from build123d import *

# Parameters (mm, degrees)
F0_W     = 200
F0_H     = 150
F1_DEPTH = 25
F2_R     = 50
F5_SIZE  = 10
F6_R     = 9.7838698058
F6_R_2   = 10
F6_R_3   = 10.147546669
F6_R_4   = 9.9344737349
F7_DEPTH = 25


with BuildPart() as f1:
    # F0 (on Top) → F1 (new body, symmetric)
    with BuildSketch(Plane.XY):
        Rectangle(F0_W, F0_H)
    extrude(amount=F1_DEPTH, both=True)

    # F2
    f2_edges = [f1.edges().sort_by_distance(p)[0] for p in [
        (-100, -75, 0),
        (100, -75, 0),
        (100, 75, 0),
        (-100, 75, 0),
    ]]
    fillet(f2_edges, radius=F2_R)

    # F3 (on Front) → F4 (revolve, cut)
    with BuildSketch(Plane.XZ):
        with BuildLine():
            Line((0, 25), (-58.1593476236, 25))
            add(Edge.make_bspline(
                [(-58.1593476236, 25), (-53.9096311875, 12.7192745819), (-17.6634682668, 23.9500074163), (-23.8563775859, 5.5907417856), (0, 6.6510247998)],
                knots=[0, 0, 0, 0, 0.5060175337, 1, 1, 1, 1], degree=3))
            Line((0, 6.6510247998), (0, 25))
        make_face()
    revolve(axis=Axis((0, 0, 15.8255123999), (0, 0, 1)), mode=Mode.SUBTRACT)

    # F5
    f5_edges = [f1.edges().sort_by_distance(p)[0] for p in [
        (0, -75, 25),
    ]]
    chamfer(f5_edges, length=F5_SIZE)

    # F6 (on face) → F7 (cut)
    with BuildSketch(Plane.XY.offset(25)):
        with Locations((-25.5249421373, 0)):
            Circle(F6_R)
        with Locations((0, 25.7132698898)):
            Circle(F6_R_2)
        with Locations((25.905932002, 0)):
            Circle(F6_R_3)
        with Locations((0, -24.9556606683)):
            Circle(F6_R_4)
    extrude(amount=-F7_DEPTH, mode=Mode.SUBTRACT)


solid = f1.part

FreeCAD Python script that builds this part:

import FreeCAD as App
import Part
import Sketcher
from FreeCAD import Vector
Q = App.Units.Quantity


def edges_at(feature, points):
    """Names of the edges that pass closest to the given points."""
    edges = feature.Shape.Edges
    near = lambda p: min(range(len(edges)), key=lambda i: edges[i].distToShape(Part.Vertex(*p))[0])
    return sorted({f"Edge{near(p) + 1}" for p in points})


def add_polygon(sketch, points):
    """Adds a closed chain of lines whose ends are joined by coincident constraints."""
    first, n = sketch.GeometryCount, len(points)
    for a, b in zip(points, points[1:] + points[:1]):
        sketch.addGeometry(Part.LineSegment(App.Vector(*a, 0), App.Vector(*b, 0)), False)
    for i in range(n):
        sketch.addConstraint(Sketcher.Constraint("Coincident", first + i, 2, first + (i + 1) % n, 1))

doc = App.newDocument("Part")
params = doc.addObject("Spreadsheet::Sheet", "Params")
for row, (alias, value) in enumerate([
    ("sketch1_width", "200 mm"),
    ("sketch1_height", "150 mm"),
    ("pad1_length", "50 mm"),
    ("fillet_radius", "50 mm"),
    ("groove_angle", "360 deg"),
    ("chamfer_size", "10 mm"),
    ("sketch3_diameter", "20 mm"),
    ("pocket1_length", "25 mm"),
], start=1):
    params.set(f"A{row}", alias)
    params.set(f"B{row}", "=" + value)
    params.setAlias(f"B{row}", alias)

body = doc.addObject("PartDesign::Body", "Body")

# Sketch on XY plane
sketch1 = body.newObject("Sketcher::SketchObject", "Sketch")
sketch1.AttachmentSupport = (doc.getObject("XY_Plane"), [""])
sketch1.MapMode = "FlatFace"
add_polygon(sketch1, [(-100, 75), (-100, -75), (100, -75), (100, 75)])  # lines 0-3
sketch1.addConstraint(Sketcher.Constraint("Vertical", 0))
sketch1.addConstraint(Sketcher.Constraint("Horizontal", 1))
sketch1.addConstraint(Sketcher.Constraint("Vertical", 2))
sketch1.addConstraint(Sketcher.Constraint("Horizontal", 3))
sketch1.addConstraint(Sketcher.Constraint("Symmetric", 0, 2, 2, 2, -1, 1))
sketch1.addConstraint(Sketcher.Constraint("DistanceX", 1, 1, 1, 2, Q("200 mm")))
sketch1.addConstraint(Sketcher.Constraint("DistanceY", 0, 2, 0, 1, Q("150 mm")))
sketch1.setExpression("Constraints[9]", "Params.sketch1_width")
sketch1.setExpression("Constraints[10]", "Params.sketch1_height")
pad1 = body.newObject("PartDesign::Pad", "Pad")
pad1.Profile = sketch1
pad1.setExpression("Length", "Params.pad1_length")
pad1.Midplane = True
doc.recompute()

fillet = body.newObject("PartDesign::Fillet", "Fillet")
fillet.Base = (pad1, edges_at(pad1, [
    (-100, -75, 0),
    (100, -75, 0),
    (100, 75, 0),
    (-100, 75, 0),
]))
fillet.setExpression("Radius", "Params.fillet_radius")

# Sketch on XZ plane
sketch2 = body.newObject("Sketcher::SketchObject", "Sketch001")
sketch2.AttachmentSupport = (doc.getObject("XZ_Plane"), [""])
sketch2.MapMode = "FlatFace"
sketch2.addGeometry(Part.LineSegment(Vector(0, 25, 0), Vector(-58.159348, 25, 0)), False)
sketch2.addGeometry(Part.BSplineCurve([Vector(-58.159348, 25, 0), Vector(-53.909631, 12.719275, 0), Vector(-17.663468, 23.950007, 0), Vector(-23.856378, 5.590742, 0), Vector(0, 6.651025, 0)], [4, 1, 4], [0, 0.506017534, 1], False, 3, [1, 1, 1, 1, 1], False), False)
sketch2.addGeometry(Part.LineSegment(Vector(0, 6.651025, 0), Vector(0, 25, 0)), False)
sketch2.addConstraint(Sketcher.Constraint("Block", 1))
sketch2.addConstraint(Sketcher.Constraint("Coincident", 0, 2, 1, 1))
sketch2.addConstraint(Sketcher.Constraint("Coincident", 1, 2, 2, 1))
sketch2.addConstraint(Sketcher.Constraint("Coincident", 2, 2, 0, 1))
sketch2.addConstraint(Sketcher.Constraint("Horizontal", 0))
sketch2.addConstraint(Sketcher.Constraint("Vertical", 2))
groove = body.newObject("PartDesign::Groove", "Groove")
groove.Profile = sketch2
groove.ReferenceAxis = (sketch2, ["V_Axis"])
groove.setExpression("Angle", "Params.groove_angle")
doc.recompute()

chamfer = body.newObject("PartDesign::Chamfer", "Chamfer")
chamfer.Base = (groove, edges_at(groove, [(0, -75, 25)]))
chamfer.setExpression("Size", "Params.chamfer_size")

# Sketch on XY plane
sketch3 = body.newObject("Sketcher::SketchObject", "Sketch002")
sketch3.AttachmentSupport = (doc.getObject("XY_Plane"), [""])
sketch3.MapMode = "FlatFace"
sketch3.AttachmentOffset = App.Placement(Vector(0, 0, 25), App.Rotation())
sketch3.addGeometry(Part.Circle(Vector(-25.524942, 0, 0), Vector(0, 0, 1), 9.78387), False)
sketch3.addGeometry(Part.Circle(Vector(0, 25.71327, 0), Vector(0, 0, 1), 10), False)
sketch3.addGeometry(Part.Circle(Vector(25.905932, 0, 0), Vector(0, 0, 1), 10.147547), False)
sketch3.addGeometry(Part.Circle(Vector(0, -24.955661, 0), Vector(0, 0, 1), 9.934474), False)
sketch3.addConstraint(Sketcher.Constraint("PointOnObject", 0, 3, -1))
sketch3.addConstraint(Sketcher.Constraint("PointOnObject", 1, 3, -2))
sketch3.addConstraint(Sketcher.Constraint("PointOnObject", 2, 3, -1))
sketch3.addConstraint(Sketcher.Constraint("PointOnObject", 3, 3, -2))
sketch3.addConstraint(Sketcher.Constraint("Diameter", 1, Q("20 mm")))
sketch3.addConstraint(Sketcher.Constraint("Diameter", 0, Q("19.56774 mm")))
sketch3.addConstraint(Sketcher.Constraint("Diameter", 2, Q("20.295093 mm")))
sketch3.addConstraint(Sketcher.Constraint("Diameter", 3, Q("19.868947 mm")))
sketch3.addConstraint(Sketcher.Constraint("DistanceY", -1, 1, 1, 3, Q("25.71327 mm")))
sketch3.addConstraint(Sketcher.Constraint("DistanceY", 3, 3, -1, 1, Q("24.955661 mm")))
sketch3.addConstraint(Sketcher.Constraint("DistanceX", 0, 3, -1, 1, Q("25.524942 mm")))
sketch3.addConstraint(Sketcher.Constraint("DistanceX", -1, 1, 2, 3, Q("25.905932 mm")))
sketch3.setExpression("Constraints[4]", "Params.sketch3_diameter")
pocket1 = body.newObject("PartDesign::Pocket", "Pocket")
pocket1.Profile = sketch3
pocket1.setExpression("Length", "Params.pocket1_length")

doc.recompute()
